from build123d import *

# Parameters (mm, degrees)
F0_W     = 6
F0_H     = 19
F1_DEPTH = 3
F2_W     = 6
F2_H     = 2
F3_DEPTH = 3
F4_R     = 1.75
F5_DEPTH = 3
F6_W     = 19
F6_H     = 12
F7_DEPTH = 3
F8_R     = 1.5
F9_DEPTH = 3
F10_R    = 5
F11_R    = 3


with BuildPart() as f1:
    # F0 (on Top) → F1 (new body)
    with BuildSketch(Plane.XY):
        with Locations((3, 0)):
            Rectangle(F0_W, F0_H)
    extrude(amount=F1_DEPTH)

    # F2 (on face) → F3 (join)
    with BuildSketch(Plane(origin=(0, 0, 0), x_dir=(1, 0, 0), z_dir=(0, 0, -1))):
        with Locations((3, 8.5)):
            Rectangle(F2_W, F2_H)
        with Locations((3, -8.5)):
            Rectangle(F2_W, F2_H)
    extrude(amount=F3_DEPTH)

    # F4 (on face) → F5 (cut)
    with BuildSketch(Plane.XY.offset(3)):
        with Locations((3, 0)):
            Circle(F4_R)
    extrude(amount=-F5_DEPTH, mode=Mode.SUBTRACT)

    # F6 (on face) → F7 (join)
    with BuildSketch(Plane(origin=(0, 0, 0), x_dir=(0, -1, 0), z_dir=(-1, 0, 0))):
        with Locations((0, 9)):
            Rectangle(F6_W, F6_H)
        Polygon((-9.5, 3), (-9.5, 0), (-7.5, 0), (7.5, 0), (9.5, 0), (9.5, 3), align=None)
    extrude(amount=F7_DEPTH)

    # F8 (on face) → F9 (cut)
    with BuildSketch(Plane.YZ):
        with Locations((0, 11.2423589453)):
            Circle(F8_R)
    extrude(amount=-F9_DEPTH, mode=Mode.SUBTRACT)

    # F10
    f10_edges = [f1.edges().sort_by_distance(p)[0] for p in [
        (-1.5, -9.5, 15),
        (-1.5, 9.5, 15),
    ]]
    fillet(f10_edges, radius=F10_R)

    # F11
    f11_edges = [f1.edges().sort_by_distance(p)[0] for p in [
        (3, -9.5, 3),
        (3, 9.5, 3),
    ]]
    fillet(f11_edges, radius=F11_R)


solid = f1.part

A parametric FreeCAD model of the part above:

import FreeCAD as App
import Part
import Sketcher
from FreeCAD import Vector


def edges_at(feature, points):
    """Names of the edges that pass closest to the given points."""
    edges = feature.Shape.Edges
    near = lambda p: min(range(len(edges)), key=lambda i: edges[i].distToShape(Part.Vertex(*p))[0])
    return sorted({f"Edge{near(p) + 1}" for p in points})


def add_polygon(sketch, points):
    """Adds a closed chain of lines whose ends are joined by coincident constraints."""
    first, n = sketch.GeometryCount, len(points)
    for a, b in zip(points, points[1:] + points[:1]):
        sketch.addGeometry(Part.LineSegment(App.Vector(*a, 0), App.Vector(*b, 0)), False)
    for i in range(n):
        sketch.addConstraint(Sketcher.Constraint("Coincident", first + i, 2, first + (i + 1) % n, 1))

doc = App.newDocument("Part")
params = doc.addObject("Spreadsheet::Sheet", "Params")
for row, (alias, value) in enumerate([
    ("sketch1_width", "6 mm"),
    ("sketch1_height", "19 mm"),
    ("pad1_length", "3 mm"),
    ("sketch2_width", "6 mm"),
    ("sketch2_height", "2 mm"),
    ("pad2_length", "3 mm"),
    ("sketch3_diameter", "3.5 mm"),
    ("pocket1_length", "3 mm"),
    ("sketch4_width", "19 mm"),
    ("sketch4_height", "15 mm"),
    ("pad3_length", "3 mm"),
    ("sketch5_diameter", "3 mm"),
    ("pocket2_length", "3 mm"),
    ("fillet_radius", "5 mm"),
    ("fillet2_radius", "3 mm"),
], start=1):
    params.set(f"A{row}", alias)
    params.set(f"B{row}", "=" + value)
    params.setAlias(f"B{row}", alias)

body = doc.addObject("PartDesign::Body", "Body")

# Sketch on XY plane
sketch1 = doc.addObject("Sketcher::SketchObject", "Sketch")
body.addObject(sketch1)
sketch1.AttachmentSupport = (doc.XY_Plane, [""])
sketch1.MapMode = "FlatFace"
add_polygon(sketch1, [(0, 10), (0, -10), (6, -10), (6, 10)])  # lines 0-3
sketch1.addConstraint([
    Sketcher.Constraint("Vertical", 0),
    Sketcher.Constraint("Horizontal", 1),
    Sketcher.Constraint("Vertical", 2),
    Sketcher.Constraint("Horizontal", 3),
    Sketcher.Constraint("Symmetric", 0, 2, 3, 2, -1, 1),
    Sketcher.Constraint("DistanceX", 1, 1, 1, 2, 6.0),
    Sketcher.Constraint("DistanceY", 0, 2, 0, 1, 19.0),
])
sketch1.setExpression("Constraints[9]", "Params.sketch1_width")
sketch1.setExpression("Constraints[10]", "Params.sketch1_height")
pad1 = doc.addObject("PartDesign::Pad", "Pad")
body.addObject(pad1)
pad1.Profile = sketch1
pad1.setExpression("Length", "Params.pad1_length")

# Sketch on XY plane
sketch2 = doc.addObject("Sketcher::SketchObject", "Sketch001")
body.addObject(sketch2)
sketch2.AttachmentSupport = (doc.XY_Plane, [""])
sketch2.MapMode = "FlatFace"
add_polygon(sketch2, [(0, -9.5), (0, -7.5), (6, -7.5), (6, -9.5)])  # lines 0-3
add_polygon(sketch2, [(0, 7.5), (0, 9.5), (6, 9.5), (6, 7.5)])  # lines 4-7
sketch2.addConstraint([
    Sketcher.Constraint("Vertical", 0),
    Sketcher.Constraint("Horizontal", 1),
    Sketcher.Constraint("Vertical", 2),
    Sketcher.Constraint("Horizontal", 3),
    Sketcher.Constraint("Vertical", 4),
    Sketcher.Constraint("Horizontal", 5),
    Sketcher.Constraint("Vertical", 6),
    Sketcher.Constraint("Horizontal", 7),
    Sketcher.Constraint("Symmetric", 3, 2, 4, 2, -1, 1),
    Sketcher.Constraint("Symmetric", 1, 2, 6, 2, -1),
    Sketcher.Constraint("PointOnObject", 0, 2, -2),
    Sketcher.Constraint("DistanceX", 1, 1, 1, 2, 6.0),
    Sketcher.Constraint("DistanceY", 0, 1, 0, 2, 2.0),
    Sketcher.Constraint("DistanceY", 0, 2, 4, 2, 17.0),
])
sketch2.setExpression("Constraints[19]", "Params.sketch2_width")
sketch2.setExpression("Constraints[20]", "Params.sketch2_height")
pad2 = doc.addObject("PartDesign::Pad", "Pad001")
body.addObject(pad2)
pad2.Profile = sketch2
pad2.setExpression("Length", "Params.pad2_length")
pad2.Reversed = True

# Sketch on XY plane
sketch3 = doc.addObject("Sketcher::SketchObject", "Sketch002")
body.addObject(sketch3)
sketch3.AttachmentSupport = (doc.XY_Plane, [""])
sketch3.MapMode = "FlatFace"
sketch3.AttachmentOffset = App.Placement(Vector(0, 0, 3), App.Rotation())
sketch3.addGeometry(Part.Circle(Vector(3, 0, 0), Vector(0, 0, 1), 1.8), False)
sketch3.addConstraint([
    Sketcher.Constraint("PointOnObject", 0, 3, -1),
    Sketcher.Constraint("Diameter", 0, 3.5),
    Sketcher.Constraint("DistanceX", -1, 1, 0, 3, 3.0),
])
sketch3.setExpression("Constraints[1]", "Params.sketch3_diameter")
pocket1 = doc.addObject("PartDesign::Pocket", "Pocket")
body.addObject(pocket1)
pocket1.Profile = sketch3
pocket1.setExpression("Length", "Params.pocket1_length")

# Sketch on YZ plane
sketch4 = doc.addObject("Sketcher::SketchObject", "Sketch003")
body.addObject(sketch4)
sketch4.AttachmentSupport = (doc.YZ_Plane, [""])
sketch4.MapMode = "FlatFace"
add_polygon(sketch4, [(10, 15), (10, 0), (-10, 0), (-10, 15)])  # lines 0-3
sketch4.addConstraint([
    Sketcher.Constraint("Vertical", 0),
    Sketcher.Constraint("Horizontal", 1),
    Sketcher.Constraint("Vertical", 2),
    Sketcher.Constraint("Horizontal", 3),
    Sketcher.Constraint("Symmetric", 0, 2, 1, 2, -1, 1),
    Sketcher.Constraint("DistanceX", 1, 2, 1, 1, 19.0),
    Sketcher.Constraint("DistanceY", 0, 2, 0, 1, 15.0),
])
sketch4.setExpression("Constraints[9]", "Params.sketch4_width")
sketch4.setExpression("Constraints[10]", "Params.sketch4_height")
pad3 = doc.addObject("PartDesign::Pad", "Pad002")
body.addObject(pad3)
pad3.Profile = sketch4
pad3.setExpression("Length", "Params.pad3_length")
pad3.Reversed = True

# Sketch on YZ plane
sketch5 = doc.addObject("Sketcher::SketchObject", "Sketch004")
body.addObject(sketch5)
sketch5.AttachmentSupport = (doc.YZ_Plane, [""])
sketch5.MapMode = "FlatFace"
sketch5.addGeometry(Part.Circle(Vector(0, 11.2, 0), Vector(0, 0, 1), 1.5), False)
sketch5.addConstraint([
    Sketcher.Constraint("PointOnObject", 0, 3, -2),
    Sketcher.Constraint("Diameter", 0, 3.0),
    Sketcher.Constraint("DistanceY", -1, 1, 0, 3, 11.242359),
])
sketch5.setExpression("Constraints[1]", "Params.sketch5_diameter")
pocket2 = doc.addObject("PartDesign::Pocket", "Pocket001")
body.addObject(pocket2)
pocket2.Profile = sketch5
pocket2.setExpression("Length", "Params.pocket2_length")
doc.recompute()

fillet = doc.addObject("PartDesign::Fillet", "Fillet")
body.addObject(fillet)
fillet.Base = (pocket2, edges_at(pocket2, [(-1.5, -9.5, 15), (-1.5, 9.5, 15)]))
fillet.setExpression("Radius", "Params.fillet_radius")
doc.recompute()

fillet2 = doc.addObject("PartDesign::Fillet", "Fillet001")
body.addObject(fillet2)
fillet2.Base = (fillet, edges_at(fillet, [(3, -9.5, 3), (3, 9.5, 3)]))
fillet2.setExpression("Radius", "Params.fillet2_radius")

doc.recompute()
